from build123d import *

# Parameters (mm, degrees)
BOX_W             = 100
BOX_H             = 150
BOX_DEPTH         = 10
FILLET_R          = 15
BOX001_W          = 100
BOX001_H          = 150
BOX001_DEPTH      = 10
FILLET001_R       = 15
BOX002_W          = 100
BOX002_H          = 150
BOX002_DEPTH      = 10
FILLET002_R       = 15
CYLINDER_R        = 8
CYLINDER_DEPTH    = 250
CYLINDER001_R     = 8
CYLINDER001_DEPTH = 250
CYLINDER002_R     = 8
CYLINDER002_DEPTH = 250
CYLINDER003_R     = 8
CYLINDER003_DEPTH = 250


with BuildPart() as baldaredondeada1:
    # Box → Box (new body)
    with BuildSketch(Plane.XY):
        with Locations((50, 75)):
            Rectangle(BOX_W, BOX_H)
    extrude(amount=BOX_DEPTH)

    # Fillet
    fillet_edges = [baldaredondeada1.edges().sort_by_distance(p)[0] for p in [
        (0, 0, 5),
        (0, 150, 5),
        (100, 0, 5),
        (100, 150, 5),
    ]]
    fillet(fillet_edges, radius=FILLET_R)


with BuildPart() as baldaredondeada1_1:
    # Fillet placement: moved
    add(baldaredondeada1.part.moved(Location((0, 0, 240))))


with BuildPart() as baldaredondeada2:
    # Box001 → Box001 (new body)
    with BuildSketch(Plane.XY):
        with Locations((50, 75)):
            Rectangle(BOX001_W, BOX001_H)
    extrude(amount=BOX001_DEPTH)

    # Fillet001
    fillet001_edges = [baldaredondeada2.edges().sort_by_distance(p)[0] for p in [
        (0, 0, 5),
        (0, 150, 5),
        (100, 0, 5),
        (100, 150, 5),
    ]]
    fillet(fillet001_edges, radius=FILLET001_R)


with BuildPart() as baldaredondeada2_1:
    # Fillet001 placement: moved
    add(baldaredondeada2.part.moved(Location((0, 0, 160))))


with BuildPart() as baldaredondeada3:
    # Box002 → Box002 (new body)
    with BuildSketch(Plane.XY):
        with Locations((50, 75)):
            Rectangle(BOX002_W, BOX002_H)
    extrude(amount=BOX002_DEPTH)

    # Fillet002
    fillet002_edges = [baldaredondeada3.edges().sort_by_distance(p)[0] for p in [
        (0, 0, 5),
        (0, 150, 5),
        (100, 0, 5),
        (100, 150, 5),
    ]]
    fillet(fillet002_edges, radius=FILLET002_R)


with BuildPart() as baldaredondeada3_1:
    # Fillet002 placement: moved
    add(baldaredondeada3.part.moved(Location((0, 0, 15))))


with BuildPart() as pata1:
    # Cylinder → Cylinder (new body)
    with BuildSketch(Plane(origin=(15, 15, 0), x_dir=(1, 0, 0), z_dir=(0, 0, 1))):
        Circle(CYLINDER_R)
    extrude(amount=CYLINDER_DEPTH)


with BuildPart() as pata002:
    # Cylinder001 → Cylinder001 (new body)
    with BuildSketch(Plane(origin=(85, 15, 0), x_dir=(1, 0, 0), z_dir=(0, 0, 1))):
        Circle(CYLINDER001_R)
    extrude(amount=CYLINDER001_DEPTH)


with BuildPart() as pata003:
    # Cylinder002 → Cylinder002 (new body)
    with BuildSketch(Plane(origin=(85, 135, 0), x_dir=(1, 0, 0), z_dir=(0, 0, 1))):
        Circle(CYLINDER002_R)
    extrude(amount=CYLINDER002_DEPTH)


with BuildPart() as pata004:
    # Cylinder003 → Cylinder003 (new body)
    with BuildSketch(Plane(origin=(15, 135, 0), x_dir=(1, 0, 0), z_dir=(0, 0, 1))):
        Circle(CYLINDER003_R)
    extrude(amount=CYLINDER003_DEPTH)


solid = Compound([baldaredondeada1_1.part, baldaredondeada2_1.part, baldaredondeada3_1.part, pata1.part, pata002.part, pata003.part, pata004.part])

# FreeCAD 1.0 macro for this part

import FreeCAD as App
import Part
import Sketcher
from FreeCAD import Vector


def edges_at(feature, points):
    """Names of the edges that pass closest to the given points."""
    edges = feature.Shape.Edges
    near = lambda p: min(range(len(edges)), key=lambda i: edges[i].distToShape(Part.Vertex(*p))[0])
    return sorted({f"Edge{near(p) + 1}" for p in points})

doc = App.newDocument("Part")
body = doc.addObject("PartDesign::Body", "Body")

sketch1 = doc.addObject("Sketcher::SketchObject", "Sketch")
body.addObject(sketch1)
sketch1.AttachmentSupport = (doc.XY_Plane, [""])
sketch1.MapMode = "FlatFace"
sketch1.addGeometry([
    Part.LineSegment(Vector(0, 150, 0), Vector(0, 0, 0)),
    Part.LineSegment(Vector(0, 0, 0), Vector(100, 0, 0)),
    Part.LineSegment(Vector(100, 0, 0), Vector(100, 150, 0)),
    Part.LineSegment(Vector(100, 150, 0), Vector(0, 150, 0)),
], False)
sketch1.addConstraint([
    Sketcher.Constraint("Coincident", 0, 2, 1, 1),
    Sketcher.Constraint("Coincident", 1, 2, 2, 1),
    Sketcher.Constraint("Coincident", 2, 2, 3, 1),
    Sketcher.Constraint("Coincident", 3, 2, 0, 1),
    Sketcher.Constraint("Vertical", 0),
    Sketcher.Constraint("Horizontal", 1),
    Sketcher.Constraint("Vertical", 2),
    Sketcher.Constraint("Horizontal", 3),
    Sketcher.Constraint("Coincident", 0, 2, -1, 1),
    Sketcher.Constraint("DistanceX", 1, 1, 1, 2, 100.0),
    Sketcher.Constraint("DistanceY", 0, 2, 0, 1, 150.0),
])
pad1 = doc.addObject("PartDesign::Pad", "Pad")
body.addObject(pad1)
pad1.Profile = sketch1
pad1.Length = 10
doc.recompute()

fillet = doc.addObject("PartDesign::Fillet", "Fillet")
body.addObject(fillet)
fillet.Base = (pad1, edges_at(pad1, [
    (0, 0, 5),
    (0, 150, 5),
    (100, 0, 5),
    (100, 150, 5),
]))
fillet.Radius = 15
body2 = doc.addObject("PartDesign::Body", "Body001")
doc.recompute()

body.Placement = App.Placement(Vector(0, 0, 240), App.Rotation(Vector(0, 0, 1), 0))
boolean = doc.addObject("PartDesign::Boolean", "Boolean")
body2.addObject(boolean)
boolean.Type = "Fuse"
boolean.addObjects([body])
body3 = doc.addObject("PartDesign::Body", "Body002")

sketch2 = doc.addObject("Sketcher::SketchObject", "Sketch001")
body3.addObject(sketch2)
sketch2.AttachmentSupport = (doc.getObject("XY_Plane002"), [""])
sketch2.MapMode = "FlatFace"
sketch2.addGeometry([
    Part.LineSegment(Vector(0, 150, 0), Vector(0, 0, 0)),
    Part.LineSegment(Vector(0, 0, 0), Vector(100, 0, 0)),
    Part.LineSegment(Vector(100, 0, 0), Vector(100, 150, 0)),
    Part.LineSegment(Vector(100, 150, 0), Vector(0, 150, 0)),
], False)
sketch2.addConstraint([
    Sketcher.Constraint("Coincident", 0, 2, 1, 1),
    Sketcher.Constraint("Coincident", 1, 2, 2, 1),
    Sketcher.Constraint("Coincident", 2, 2, 3, 1),
    Sketcher.Constraint("Coincident", 3, 2, 0, 1),
    Sketcher.Constraint("Vertical", 0),
    Sketcher.Constraint("Horizontal", 1),
    Sketcher.Constraint("Vertical", 2),
    Sketcher.Constraint("Horizontal", 3),
    Sketcher.Constraint("Coincident", 0, 2, -1, 1),
    Sketcher.Constraint("DistanceX", 1, 1, 1, 2, 100.0),
    Sketcher.Constraint("DistanceY", 0, 2, 0, 1, 150.0),
])
pad2 = doc.addObject("PartDesign::Pad", "Pad001")
body3.addObject(pad2)
pad2.Profile = sketch2
pad2.Length = 10
doc.recompute()

fillet2 = doc.addObject("PartDesign::Fillet", "Fillet001")
body3.addObject(fillet2)
fillet2.Base = (pad2, edges_at(pad2, [
    (0, 0, 5),
    (0, 150, 5),
    (100, 0, 5),
    (100, 150, 5),
]))
fillet2.Radius = 15
body4 = doc.addObject("PartDesign::Body", "Body003")
doc.recompute()

body3.Placement = App.Placement(Vector(0, 0, 160), App.Rotation(Vector(0, 0, 1), 0))
boolean2 = doc.addObject("PartDesign::Boolean", "Boolean001")
body4.addObject(boolean2)
boolean2.Type = "Fuse"
boolean2.addObjects([body3])
body5 = doc.addObject("PartDesign::Body", "Body004")

sketch3 = doc.addObject("Sketcher::SketchObject", "Sketch002")
body5.addObject(sketch3)
sketch3.AttachmentSupport = (doc.getObject("XY_Plane004"), [""])
sketch3.MapMode = "FlatFace"
sketch3.addGeometry([
    Part.LineSegment(Vector(0, 150, 0), Vector(0, 0, 0)),
    Part.LineSegment(Vector(0, 0, 0), Vector(100, 0, 0)),
    Part.LineSegment(Vector(100, 0, 0), Vector(100, 150, 0)),
    Part.LineSegment(Vector(100, 150, 0), Vector(0, 150, 0)),
], False)
sketch3.addConstraint([
    Sketcher.Constraint("Coincident", 0, 2, 1, 1),
    Sketcher.Constraint("Coincident", 1, 2, 2, 1),
    Sketcher.Constraint("Coincident", 2, 2, 3, 1),
    Sketcher.Constraint("Coincident", 3, 2, 0, 1),
    Sketcher.Constraint("Vertical", 0),
    Sketcher.Constraint("Horizontal", 1),
    Sketcher.Constraint("Vertical", 2),
    Sketcher.Constraint("Horizontal", 3),
    Sketcher.Constraint("Coincident", 0, 2, -1, 1),
    Sketcher.Constraint("DistanceX", 1, 1, 1, 2, 100.0),
    Sketcher.Constraint("DistanceY", 0, 2, 0, 1, 150.0),
])
pad3 = doc.addObject("PartDesign::Pad", "Pad002")
body5.addObject(pad3)
pad3.Profile = sketch3
pad3.Length = 10
doc.recompute()

fillet3 = doc.addObject("PartDesign::Fillet", "Fillet002")
body5.addObject(fillet3)
fillet3.Base = (pad3, edges_at(pad3, [
    (0, 0, 5),
    (0, 150, 5),
    (100, 0, 5),
    (100, 150, 5),
]))
fillet3.Radius = 15
body6 = doc.addObject("PartDesign::Body", "Body005")
doc.recompute()

body5.Placement = App.Placement(Vector(0, 0, 15), App.Rotation(Vector(0, 0, 1), 0))
boolean3 = doc.addObject("PartDesign::Boolean", "Boolean002")
body6.addObject(boolean3)
boolean3.Type = "Fuse"
boolean3.addObjects([body5])
body7 = doc.addObject("PartDesign::Body", "Body006")

sketch4 = doc.addObject("Sketcher::SketchObject", "Sketch003")
body7.addObject(sketch4)
sketch4.AttachmentSupport = (doc.getObject("XY_Plane006"), [""])
sketch4.MapMode = "FlatFace"
sketch4.addGeometry(Part.Circle(Vector(15, 15, 0), Vector(0, 0, 1), 8), False)
sketch4.addConstraint([
    Sketcher.Constraint("Diameter", 0, 16.0),
    Sketcher.Constraint("DistanceX", -1, 1, 0, 3, 15.0),
    Sketcher.Constraint("DistanceY", -1, 1, 0, 3, 15.0),
])
pad4 = doc.addObject("PartDesign::Pad", "Pad003")
body7.addObject(pad4)
pad4.Profile = sketch4
pad4.Length = 250
body8 = doc.addObject("PartDesign::Body", "Body007")

sketch5 = doc.addObject("Sketcher::SketchObject", "Sketch004")
body8.addObject(sketch5)
sketch5.AttachmentSupport = (doc.getObject("XY_Plane007"), [""])
sketch5.MapMode = "FlatFace"
sketch5.addGeometry(Part.Circle(Vector(85, 15, 0), Vector(0, 0, 1), 8), False)
sketch5.addConstraint([
    Sketcher.Constraint("Diameter", 0, 16.0),
    Sketcher.Constraint("DistanceX", -1, 1, 0, 3, 85.0),
    Sketcher.Constraint("DistanceY", -1, 1, 0, 3, 15.0),
])
pad5 = doc.addObject("PartDesign::Pad", "Pad004")
body8.addObject(pad5)
pad5.Profile = sketch5
pad5.Length = 250
body9 = doc.addObject("PartDesign::Body", "Body008")

sketch6 = doc.addObject("Sketcher::SketchObject", "Sketch005")
body9.addObject(sketch6)
sketch6.AttachmentSupport = (doc.getObject("XY_Plane008"), [""])
sketch6.MapMode = "FlatFace"
sketch6.addGeometry(Part.Circle(Vector(85, 135, 0), Vector(0, 0, 1), 8), False)
sketch6.addConstraint([
    Sketcher.Constraint("Diameter", 0, 16.0),
    Sketcher.Constraint("DistanceX", -1, 1, 0, 3, 85.0),
    Sketcher.Constraint("DistanceY", -1, 1, 0, 3, 135.0),
])
pad6 = doc.addObject("PartDesign::Pad", "Pad005")
body9.addObject(pad6)
pad6.Profile = sketch6
pad6.Length = 250
body10 = doc.addObject("PartDesign::Body", "Body009")

sketch7 = doc.addObject("Sketcher::SketchObject", "Sketch006")
body10.addObject(sketch7)
sketch7.AttachmentSupport = (doc.getObject("XY_Plane009"), [""])
sketch7.MapMode = "FlatFace"
sketch7.addGeometry(Part.Circle(Vector(15, 135, 0), Vector(0, 0, 1), 8), False)
sketch7.addConstraint([
    Sketcher.Constraint("Diameter", 0, 16.0),
    Sketcher.Constraint("DistanceX", -1, 1, 0, 3, 15.0),
    Sketcher.Constraint("DistanceY", -1, 1, 0, 3, 135.0),
])
pad7 = doc.addObject("PartDesign::Pad", "Pad006")
body10.addObject(pad7)
pad7.Profile = sketch7
pad7.Length = 250

doc.recompute()
